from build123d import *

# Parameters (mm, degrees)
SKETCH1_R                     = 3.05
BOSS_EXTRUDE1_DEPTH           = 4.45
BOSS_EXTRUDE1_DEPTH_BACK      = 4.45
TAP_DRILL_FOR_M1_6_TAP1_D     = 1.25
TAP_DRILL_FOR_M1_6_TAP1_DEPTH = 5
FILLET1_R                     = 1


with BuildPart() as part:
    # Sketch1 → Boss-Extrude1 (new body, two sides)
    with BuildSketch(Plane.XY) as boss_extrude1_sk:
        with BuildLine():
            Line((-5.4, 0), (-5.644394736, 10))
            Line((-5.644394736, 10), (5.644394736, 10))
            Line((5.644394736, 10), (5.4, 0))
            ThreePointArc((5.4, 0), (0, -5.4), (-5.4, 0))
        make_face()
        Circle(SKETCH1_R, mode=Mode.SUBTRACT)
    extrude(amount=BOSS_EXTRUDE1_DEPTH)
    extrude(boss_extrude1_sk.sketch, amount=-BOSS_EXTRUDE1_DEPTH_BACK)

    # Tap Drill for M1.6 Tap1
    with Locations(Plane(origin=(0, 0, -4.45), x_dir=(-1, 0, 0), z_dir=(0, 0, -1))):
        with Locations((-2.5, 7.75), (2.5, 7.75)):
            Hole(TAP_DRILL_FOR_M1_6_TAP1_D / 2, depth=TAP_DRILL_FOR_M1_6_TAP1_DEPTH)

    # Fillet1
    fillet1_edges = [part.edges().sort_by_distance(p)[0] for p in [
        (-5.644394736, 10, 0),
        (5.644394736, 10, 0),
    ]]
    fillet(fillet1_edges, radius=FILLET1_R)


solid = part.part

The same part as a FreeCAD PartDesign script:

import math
import FreeCAD as App
import Part
import Sketcher

V = App.Vector
Q = App.Units.Quantity


def edges_at(feature, points):
    """Names of the edges that pass closest to the given points."""
    edges = feature.Shape.Edges
    near = lambda p: min(range(len(edges)), key=lambda i: edges[i].distToShape(Part.Vertex(*p))[0])
    return sorted({f"Edge{near(p) + 1}" for p in points})

doc = App.newDocument("Part")
body = doc.addObject("PartDesign::Body", "Body")

# Sketch on XY plane
sketch1 = doc.addObject("Sketcher::SketchObject", "Sketch")
body.addObject(sketch1)
sketch1.AttachmentSupport = (doc.XY_Plane, [""])
sketch1.MapMode = "FlatFace"
sketch1.addGeometry([
    Part.LineSegment(V(-5.6, 10, 0), V(-5.4, 0, 0)),  # 0
    Part.ArcOfCircle(Part.Circle(V(0, 0, 0), V(0, 0, 1), 5.4), math.radians(180), math.radians(360)),  # 1
    Part.LineSegment(V(5.4, 0, 0), V(5.6, 10, 0)),  # 2
    Part.LineSegment(V(5.6, 10, 0), V(-5.6, 10, 0)),  # 3
    Part.Circle(V(0, 0, 0), V(0, 0, 1), 3),  # 4
], False)
sketch1.addConstraint([
    Sketcher.Constraint("Coincident", 0, 2, 1, 1),
    Sketcher.Constraint("Coincident", 1, 2, 2, 1),
    Sketcher.Constraint("Coincident", 2, 2, 3, 1),
    Sketcher.Constraint("Coincident", 3, 2, 0, 1),
    Sketcher.Constraint("Horizontal", 3),
    Sketcher.Constraint("Coincident", 1, 3, -1, 1),
    Sketcher.Constraint("Coincident", 4, 3, -1, 1),
    Sketcher.Constraint("PointOnObject", 0, 2, -1),
    Sketcher.Constraint("PointOnObject", 1, 2, -1),
    Sketcher.Constraint("Equal", 0, 2),
    Sketcher.Constraint("Diameter", 4, Q("6.1 mm")),
    Sketcher.Constraint("Radius", 1, Q("5.4 mm")),
    Sketcher.Constraint("DistanceY", -1, 1, 2, 2, Q("10 mm")),
    Sketcher.Constraint("Angle", 0, Q("-88.6 deg")),
])
pad1 = doc.addObject("PartDesign::Pad", "Pad")
body.addObject(pad1)
pad1.Profile = sketch1
pad1.Type = "TwoLengths"
pad1.Length = 4.45
pad1.Length2 = 4.45

# Sketch on XY plane
sketch2 = doc.addObject("Sketcher::SketchObject", "Sketch001")
body.addObject(sketch2)
sketch2.AttachmentSupport = (doc.XY_Plane, [""])
sketch2.MapMode = "FlatFace"
sketch2.AttachmentOffset = App.Placement(V(0, 0, -4.45), App.Rotation())
sketch2.addGeometry([
    Part.Circle(V(2.5, 7.8, 0), V(0, 0, 1), 0.6),
    Part.Circle(V(-2.5, 7.8, 0), V(0, 0, 1), 0.6),
], False)
sketch2.addConstraint([
    Sketcher.Constraint("Equal", 0, 1),
    Sketcher.Constraint("Symmetric", 0, 3, 1, 3, -2),
    Sketcher.Constraint("Diameter", 0, Q("1.25 mm")),
    Sketcher.Constraint("DistanceX", 1, 3, 0, 3, Q("5 mm")),
    Sketcher.Constraint("DistanceY", -1, 1, 0, 3, Q("7.75 mm")),
])
doc.recompute()
hole = doc.addObject("PartDesign::Hole", "Hole")
body.addObject(hole)
hole.Profile = sketch2
hole.ThreadType = "None"
hole.Diameter = 1.25
hole.DepthType = "Dimension"
hole.Depth = 5
hole.DrillPoint = "Flat"
hole.Reversed = True
doc.recompute()

fillet = doc.addObject("PartDesign::Fillet", "Fillet")
body.addObject(fillet)
fillet.Base = (hole, edges_at(hole, [(-5.644, 10, 0), (5.644, 10, 0)]))
fillet.Radius = 1

doc.recompute()
